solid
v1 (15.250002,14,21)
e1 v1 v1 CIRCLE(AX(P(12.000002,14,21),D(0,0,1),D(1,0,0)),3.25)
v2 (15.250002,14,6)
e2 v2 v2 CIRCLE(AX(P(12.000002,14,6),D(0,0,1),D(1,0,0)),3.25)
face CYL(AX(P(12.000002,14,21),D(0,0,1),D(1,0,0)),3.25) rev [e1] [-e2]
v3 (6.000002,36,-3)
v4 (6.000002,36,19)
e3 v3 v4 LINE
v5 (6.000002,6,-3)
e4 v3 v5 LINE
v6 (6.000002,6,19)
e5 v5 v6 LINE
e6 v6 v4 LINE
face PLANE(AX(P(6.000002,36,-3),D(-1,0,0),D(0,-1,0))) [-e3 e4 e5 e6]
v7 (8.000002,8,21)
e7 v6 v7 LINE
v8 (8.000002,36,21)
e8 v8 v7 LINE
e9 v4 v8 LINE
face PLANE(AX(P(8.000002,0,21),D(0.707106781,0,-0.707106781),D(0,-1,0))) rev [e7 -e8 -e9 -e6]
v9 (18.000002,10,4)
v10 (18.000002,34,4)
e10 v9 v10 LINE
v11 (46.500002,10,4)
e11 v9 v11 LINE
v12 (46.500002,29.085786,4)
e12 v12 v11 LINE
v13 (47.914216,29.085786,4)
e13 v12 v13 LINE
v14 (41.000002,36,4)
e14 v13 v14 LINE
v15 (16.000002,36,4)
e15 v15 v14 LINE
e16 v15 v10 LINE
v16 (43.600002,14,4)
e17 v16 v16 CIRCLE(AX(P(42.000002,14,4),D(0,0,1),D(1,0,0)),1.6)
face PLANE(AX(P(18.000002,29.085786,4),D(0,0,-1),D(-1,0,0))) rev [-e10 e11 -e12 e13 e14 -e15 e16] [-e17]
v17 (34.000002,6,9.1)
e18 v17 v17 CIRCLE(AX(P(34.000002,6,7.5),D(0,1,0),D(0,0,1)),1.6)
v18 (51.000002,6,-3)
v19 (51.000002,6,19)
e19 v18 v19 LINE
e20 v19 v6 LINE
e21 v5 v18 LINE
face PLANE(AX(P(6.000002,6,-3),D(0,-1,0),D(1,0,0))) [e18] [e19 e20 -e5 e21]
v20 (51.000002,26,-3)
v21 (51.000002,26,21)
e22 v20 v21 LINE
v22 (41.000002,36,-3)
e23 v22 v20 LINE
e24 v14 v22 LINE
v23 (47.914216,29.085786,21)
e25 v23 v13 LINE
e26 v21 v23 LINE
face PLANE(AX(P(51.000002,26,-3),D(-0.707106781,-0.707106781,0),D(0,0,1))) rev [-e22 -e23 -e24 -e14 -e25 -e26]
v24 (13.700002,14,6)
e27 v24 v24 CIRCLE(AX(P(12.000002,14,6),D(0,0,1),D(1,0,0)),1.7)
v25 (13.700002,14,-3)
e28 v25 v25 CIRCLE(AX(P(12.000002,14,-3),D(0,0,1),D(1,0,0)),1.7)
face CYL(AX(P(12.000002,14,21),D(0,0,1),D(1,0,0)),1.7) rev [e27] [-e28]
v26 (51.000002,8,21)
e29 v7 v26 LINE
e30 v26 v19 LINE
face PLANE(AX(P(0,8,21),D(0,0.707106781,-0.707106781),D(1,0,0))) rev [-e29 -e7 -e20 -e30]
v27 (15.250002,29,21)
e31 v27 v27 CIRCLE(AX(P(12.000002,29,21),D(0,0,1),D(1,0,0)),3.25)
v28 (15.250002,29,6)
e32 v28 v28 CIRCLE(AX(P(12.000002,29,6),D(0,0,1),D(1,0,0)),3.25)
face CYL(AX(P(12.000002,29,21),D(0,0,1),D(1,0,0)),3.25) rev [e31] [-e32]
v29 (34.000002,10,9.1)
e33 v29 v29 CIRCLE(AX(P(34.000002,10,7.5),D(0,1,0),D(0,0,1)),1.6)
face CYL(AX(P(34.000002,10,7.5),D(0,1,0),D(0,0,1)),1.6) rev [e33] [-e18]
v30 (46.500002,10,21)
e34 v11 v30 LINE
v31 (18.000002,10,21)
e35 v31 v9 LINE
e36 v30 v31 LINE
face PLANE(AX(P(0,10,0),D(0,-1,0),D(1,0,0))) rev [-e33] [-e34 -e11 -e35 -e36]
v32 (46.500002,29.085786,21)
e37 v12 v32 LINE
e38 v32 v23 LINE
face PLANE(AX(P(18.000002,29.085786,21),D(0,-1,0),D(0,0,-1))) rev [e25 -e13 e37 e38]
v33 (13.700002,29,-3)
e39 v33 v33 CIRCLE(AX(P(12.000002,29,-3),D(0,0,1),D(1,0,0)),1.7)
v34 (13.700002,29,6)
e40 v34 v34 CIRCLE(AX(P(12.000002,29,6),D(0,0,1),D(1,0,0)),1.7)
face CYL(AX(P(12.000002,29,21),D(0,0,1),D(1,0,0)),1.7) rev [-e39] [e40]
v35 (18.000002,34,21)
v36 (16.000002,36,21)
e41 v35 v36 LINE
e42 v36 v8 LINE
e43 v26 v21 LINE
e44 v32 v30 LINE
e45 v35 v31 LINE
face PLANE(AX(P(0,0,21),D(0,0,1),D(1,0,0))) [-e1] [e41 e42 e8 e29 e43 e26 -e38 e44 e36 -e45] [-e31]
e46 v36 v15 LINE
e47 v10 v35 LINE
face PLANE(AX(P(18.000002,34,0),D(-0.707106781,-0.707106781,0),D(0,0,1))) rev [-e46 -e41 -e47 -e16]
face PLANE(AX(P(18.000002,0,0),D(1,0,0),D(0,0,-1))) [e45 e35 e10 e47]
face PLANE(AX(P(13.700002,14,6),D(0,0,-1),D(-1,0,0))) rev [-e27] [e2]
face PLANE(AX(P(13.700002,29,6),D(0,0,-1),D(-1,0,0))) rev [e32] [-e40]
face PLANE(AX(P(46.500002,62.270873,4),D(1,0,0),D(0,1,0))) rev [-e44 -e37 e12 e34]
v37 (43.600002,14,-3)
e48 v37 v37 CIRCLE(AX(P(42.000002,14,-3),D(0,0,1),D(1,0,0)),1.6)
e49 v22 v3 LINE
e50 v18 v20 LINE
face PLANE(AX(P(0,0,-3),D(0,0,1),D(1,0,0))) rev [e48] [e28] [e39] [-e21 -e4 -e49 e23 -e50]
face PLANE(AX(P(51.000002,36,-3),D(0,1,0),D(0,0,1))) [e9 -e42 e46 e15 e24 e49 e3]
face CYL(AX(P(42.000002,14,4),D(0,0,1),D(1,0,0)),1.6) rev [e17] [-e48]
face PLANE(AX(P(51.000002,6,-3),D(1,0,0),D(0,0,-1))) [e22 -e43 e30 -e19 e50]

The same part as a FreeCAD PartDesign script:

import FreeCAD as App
import Part
import Sketcher
from FreeCAD import Vector


def edges_at(feature, points):
    """Names of the edges that pass closest to the given points."""
    edges = feature.Shape.Edges
    near = lambda p: min(range(len(edges)), key=lambda i: edges[i].distToShape(Part.Vertex(*p))[0])
    return sorted({f"Edge{near(p) + 1}" for p in points})


def add_polygon(sketch, points):
    """Adds a closed chain of lines whose ends are joined by coincident constraints."""
    first, n = sketch.GeometryCount, len(points)
    for a, b in zip(points, points[1:] + points[:1]):
        sketch.addGeometry(Part.LineSegment(App.Vector(*a, 0), App.Vector(*b, 0)), False)
    for i in range(n):
        sketch.addConstraint(Sketcher.Constraint("Coincident", first + i, 2, first + (i + 1) % n, 1))

doc = App.newDocument("Part")
params = doc.addObject("Spreadsheet::Sheet", "Params")
for row, (alias, value) in enumerate([
    ("sketch1_width", "45 mm"),
    ("sketch1_height", "30 mm"),
    ("pad1_length", "24 mm"),
    ("sketch2_height", "17 mm"),
    ("pocket1_length", "33 mm"),
    ("sketch3_height", "17 mm"),
    ("sketch3_width", "28.5 mm"),
    ("sketch4_diameter", "3.2 mm"),
    ("hole_diameter", "3.2 mm"),
    ("sketch5_diameter", "3.2 mm"),
    ("hole2_diameter", "3.2 mm"),
    ("sketch6_diameter", "3.4 mm"),
    ("hole3_diameter", "3.4 mm"),
    ("hole3_cbore_diameter", "6.5 mm"),
    ("hole3_cbore_depth", "15 mm"),
    ("chamfer_size", "2 mm"),
    ("chamfer2_size", "10 mm"),
], start=1):
    params.set(f"A{row}", alias)
    params.set(f"B{row}", "=" + value)
    params.setAlias(f"B{row}", alias)

body = doc.addObject("PartDesign::Body", "Body")

sketch1 = body.newObject("Sketcher::SketchObject", "Sketch")
sketch1.AttachmentSupport = (doc.getObject("XY_Plane"), [""])
sketch1.MapMode = "FlatFace"
sketch1.AttachmentOffset = App.Placement(Vector(0, 0, 21), App.Rotation())
add_polygon(sketch1, [(6, 36), (6, 6), (51, 6), (51, 36)])
sketch1.addConstraint(Sketcher.Constraint("Vertical", 0))
sketch1.addConstraint(Sketcher.Constraint("Horizontal", 1))
sketch1.addConstraint(Sketcher.Constraint("Vertical", 2))
sketch1.addConstraint(Sketcher.Constraint("Horizontal", 3))
sketch1.addConstraint(Sketcher.Constraint("DistanceX", 1, 1, 1, 2, 45.0))
sketch1.addConstraint(Sketcher.Constraint("DistanceY", 0, 2, 0, 1, 30.0))
sketch1.addConstraint(Sketcher.Constraint("DistanceY", -1, 1, 0, 2, 6.0))
sketch1.addConstraint(Sketcher.Constraint("DistanceX", -1, 1, 0, 2, 6.000002))
sketch1.setExpression("Constraints[8]", "Params.sketch1_width")
sketch1.setExpression("Constraints[9]", "Params.sketch1_height")
pad1 = body.newObject("PartDesign::Pad", "Pad")
pad1.Profile = sketch1
pad1.setExpression("Length", "Params.pad1_length")
pad1.Reversed = True

sketch2 = body.newObject("Sketcher::SketchObject", "Sketch001")
sketch2.AttachmentSupport = (doc.getObject("YZ_Plane"), [""])
sketch2.MapMode = "FlatFace"
sketch2.AttachmentOffset = App.Placement(Vector(0, 0, 51.000002), App.Rotation())
add_polygon(sketch2, [(36, 21), (29, 21), (29, 4), (36, 4)])
sketch2.addConstraint(Sketcher.Constraint("Horizontal", 0))
sketch2.addConstraint(Sketcher.Constraint("Vertical", 1))
sketch2.addConstraint(Sketcher.Constraint("Horizontal", 2))
sketch2.addConstraint(Sketcher.Constraint("Vertical", 3))
sketch2.addConstraint(Sketcher.Constraint("DistanceY", 1, 2, 1, 1, 17.0))
sketch2.addConstraint(Sketcher.Constraint("DistanceY", -1, 1, 0, 2, 21.0))
sketch2.addConstraint(Sketcher.Constraint("DistanceX", -1, 1, 2, 2, 36.0))
sketch2.addConstraint(Sketcher.Constraint("DistanceX", 0, 2, 0, 1, 6.914214))
sketch2.setExpression("Constraints[8]", "Params.sketch2_height")
pocket1 = body.newObject("PartDesign::Pocket", "Pocket")
pocket1.Profile = sketch2
pocket1.setExpression("Length", "Params.pocket1_length")

sketch3 = body.newObject("Sketcher::SketchObject", "Sketch002")
sketch3.AttachmentSupport = (doc.getObject("XZ_Plane"), [""])
sketch3.MapMode = "FlatFace"
sketch3.AttachmentOffset = App.Placement(Vector(0, 0, -10), App.Rotation())
add_polygon(sketch3, [(18, 21), (18, 4), (47, 4), (47, 21)])
sketch3.addConstraint(Sketcher.Constraint("Vertical", 0))
sketch3.addConstraint(Sketcher.Constraint("Horizontal", 1))
sketch3.addConstraint(Sketcher.Constraint("Vertical", 2))
sketch3.addConstraint(Sketcher.Constraint("Horizontal", 3))
sketch3.addConstraint(Sketcher.Constraint("DistanceY", 0, 2, 0, 1, 17.0))
sketch3.addConstraint(Sketcher.Constraint("DistanceX", 1, 1, 1, 2, 28.5))
sketch3.addConstraint(Sketcher.Constraint("DistanceY", -1, 1, 0, 2, 4.0))
sketch3.addConstraint(Sketcher.Constraint("DistanceX", -1, 1, 0, 2, 18.000002))
sketch3.setExpression("Constraints[8]", "Params.sketch3_height")
sketch3.setExpression("Constraints[9]", "Params.sketch3_width")
pocket2 = body.newObject("PartDesign::Pocket", "Pocket001")
pocket2.Profile = sketch3
pocket2.Type = "UpToFirst"

sketch4 = body.newObject("Sketcher::SketchObject", "Sketch003")
sketch4.AttachmentSupport = (doc.getObject("XY_Plane"), [""])
sketch4.MapMode = "FlatFace"
sketch4.AttachmentOffset = App.Placement(Vector(0, 0, 4), App.Rotation())
sketch4.addGeometry(Part.Circle(Vector(42, 14, 0), Vector(0, 0, 1), 1.6), False)
sketch4.addConstraint(Sketcher.Constraint("Diameter", 0, 3.2))
sketch4.addConstraint(Sketcher.Constraint("DistanceY", -1, 1, 0, 3, 14.0))
sketch4.addConstraint(Sketcher.Constraint("DistanceX", -1, 1, 0, 3, 42.000002))
sketch4.setExpression("Constraints[0]", "Params.sketch4_diameter")
doc.recompute()
hole = body.newObject("PartDesign::Hole", "Hole")
hole.Profile = sketch4
hole.ThreadType = "None"
hole.setExpression("Diameter", "Params.hole_diameter")
hole.DepthType = "ThroughAll"

sketch5 = body.newObject("Sketcher::SketchObject", "Sketch004")
sketch5.AttachmentSupport = (doc.getObject("XZ_Plane"), [""])
sketch5.MapMode = "FlatFace"
sketch5.AttachmentOffset = App.Placement(Vector(0, 0, -10), App.Rotation())
sketch5.addGeometry(Part.Circle(Vector(34, 7.5, 0), Vector(0, 0, 1), 1.6), False)
sketch5.addConstraint(Sketcher.Constraint("Diameter", 0, 3.2))
sketch5.addConstraint(Sketcher.Constraint("DistanceY", -1, 1, 0, 3, 7.5))
sketch5.addConstraint(Sketcher.Constraint("DistanceX", -1, 1, 0, 3, 34.000002))
sketch5.setExpression("Constraints[0]", "Params.sketch5_diameter")
doc.recompute()
hole2 = body.newObject("PartDesign::Hole", "Hole001")
hole2.Profile = sketch5
hole2.ThreadType = "None"
hole2.setExpression("Diameter", "Params.hole2_diameter")
hole2.DepthType = "ThroughAll"
hole2.Reversed = True

sketch6 = body.newObject("Sketcher::SketchObject", "Sketch005")
sketch6.AttachmentSupport = (doc.getObject("XY_Plane"), [""])
sketch6.MapMode = "FlatFace"
sketch6.AttachmentOffset = App.Placement(Vector(0, 0, 21), App.Rotation())
sketch6.addGeometry(Part.Circle(Vector(12, 29, 0), Vector(0, 0, 1), 1.7), False)
sketch6.addGeometry(Part.Circle(Vector(12, 14, 0), Vector(0, 0, 1), 1.7), False)
sketch6.addConstraint(Sketcher.Constraint("Equal", 0, 1))
sketch6.addConstraint(Sketcher.Constraint("Vertical", 0, 3, 1, 3))
sketch6.addConstraint(Sketcher.Constraint("Diameter", 0, 3.4))
sketch6.addConstraint(Sketcher.Constraint("DistanceY", -1, 1, 0, 3, 29.0))
sketch6.addConstraint(Sketcher.Constraint("DistanceY", -1, 1, 1, 3, 14.0))
sketch6.addConstraint(Sketcher.Constraint("DistanceX", -1, 1, 0, 3, 12.000002))
sketch6.setExpression("Constraints[2]", "Params.sketch6_diameter")
doc.recompute()
hole3 = body.newObject("PartDesign::Hole", "Hole002")
hole3.Profile = sketch6
hole3.ThreadType = "None"
hole3.setExpression("Diameter", "Params.hole3_diameter")
hole3.DepthType = "ThroughAll"
hole3.HoleCutType = "Counterbore"
hole3.setExpression("HoleCutDiameter", "Params.hole3_cbore_diameter")
hole3.setExpression("HoleCutDepth", "Params.hole3_cbore_depth")
doc.recompute()

chamfer = body.newObject("PartDesign::Chamfer", "Chamfer")
chamfer.Base = (hole3, edges_at(hole3, [(18, 36, 12.5), (6, 21, 21), (28.5, 6, 21)]))
chamfer.setExpression("Size", "Params.chamfer_size")
doc.recompute()

chamfer2 = body.newObject("PartDesign::Chamfer", "Chamfer001")
chamfer2.Base = (chamfer, edges_at(chamfer, [(51, 36, 0.5)]))
chamfer2.setExpression("Size", "Params.chamfer2_size")

doc.recompute()
